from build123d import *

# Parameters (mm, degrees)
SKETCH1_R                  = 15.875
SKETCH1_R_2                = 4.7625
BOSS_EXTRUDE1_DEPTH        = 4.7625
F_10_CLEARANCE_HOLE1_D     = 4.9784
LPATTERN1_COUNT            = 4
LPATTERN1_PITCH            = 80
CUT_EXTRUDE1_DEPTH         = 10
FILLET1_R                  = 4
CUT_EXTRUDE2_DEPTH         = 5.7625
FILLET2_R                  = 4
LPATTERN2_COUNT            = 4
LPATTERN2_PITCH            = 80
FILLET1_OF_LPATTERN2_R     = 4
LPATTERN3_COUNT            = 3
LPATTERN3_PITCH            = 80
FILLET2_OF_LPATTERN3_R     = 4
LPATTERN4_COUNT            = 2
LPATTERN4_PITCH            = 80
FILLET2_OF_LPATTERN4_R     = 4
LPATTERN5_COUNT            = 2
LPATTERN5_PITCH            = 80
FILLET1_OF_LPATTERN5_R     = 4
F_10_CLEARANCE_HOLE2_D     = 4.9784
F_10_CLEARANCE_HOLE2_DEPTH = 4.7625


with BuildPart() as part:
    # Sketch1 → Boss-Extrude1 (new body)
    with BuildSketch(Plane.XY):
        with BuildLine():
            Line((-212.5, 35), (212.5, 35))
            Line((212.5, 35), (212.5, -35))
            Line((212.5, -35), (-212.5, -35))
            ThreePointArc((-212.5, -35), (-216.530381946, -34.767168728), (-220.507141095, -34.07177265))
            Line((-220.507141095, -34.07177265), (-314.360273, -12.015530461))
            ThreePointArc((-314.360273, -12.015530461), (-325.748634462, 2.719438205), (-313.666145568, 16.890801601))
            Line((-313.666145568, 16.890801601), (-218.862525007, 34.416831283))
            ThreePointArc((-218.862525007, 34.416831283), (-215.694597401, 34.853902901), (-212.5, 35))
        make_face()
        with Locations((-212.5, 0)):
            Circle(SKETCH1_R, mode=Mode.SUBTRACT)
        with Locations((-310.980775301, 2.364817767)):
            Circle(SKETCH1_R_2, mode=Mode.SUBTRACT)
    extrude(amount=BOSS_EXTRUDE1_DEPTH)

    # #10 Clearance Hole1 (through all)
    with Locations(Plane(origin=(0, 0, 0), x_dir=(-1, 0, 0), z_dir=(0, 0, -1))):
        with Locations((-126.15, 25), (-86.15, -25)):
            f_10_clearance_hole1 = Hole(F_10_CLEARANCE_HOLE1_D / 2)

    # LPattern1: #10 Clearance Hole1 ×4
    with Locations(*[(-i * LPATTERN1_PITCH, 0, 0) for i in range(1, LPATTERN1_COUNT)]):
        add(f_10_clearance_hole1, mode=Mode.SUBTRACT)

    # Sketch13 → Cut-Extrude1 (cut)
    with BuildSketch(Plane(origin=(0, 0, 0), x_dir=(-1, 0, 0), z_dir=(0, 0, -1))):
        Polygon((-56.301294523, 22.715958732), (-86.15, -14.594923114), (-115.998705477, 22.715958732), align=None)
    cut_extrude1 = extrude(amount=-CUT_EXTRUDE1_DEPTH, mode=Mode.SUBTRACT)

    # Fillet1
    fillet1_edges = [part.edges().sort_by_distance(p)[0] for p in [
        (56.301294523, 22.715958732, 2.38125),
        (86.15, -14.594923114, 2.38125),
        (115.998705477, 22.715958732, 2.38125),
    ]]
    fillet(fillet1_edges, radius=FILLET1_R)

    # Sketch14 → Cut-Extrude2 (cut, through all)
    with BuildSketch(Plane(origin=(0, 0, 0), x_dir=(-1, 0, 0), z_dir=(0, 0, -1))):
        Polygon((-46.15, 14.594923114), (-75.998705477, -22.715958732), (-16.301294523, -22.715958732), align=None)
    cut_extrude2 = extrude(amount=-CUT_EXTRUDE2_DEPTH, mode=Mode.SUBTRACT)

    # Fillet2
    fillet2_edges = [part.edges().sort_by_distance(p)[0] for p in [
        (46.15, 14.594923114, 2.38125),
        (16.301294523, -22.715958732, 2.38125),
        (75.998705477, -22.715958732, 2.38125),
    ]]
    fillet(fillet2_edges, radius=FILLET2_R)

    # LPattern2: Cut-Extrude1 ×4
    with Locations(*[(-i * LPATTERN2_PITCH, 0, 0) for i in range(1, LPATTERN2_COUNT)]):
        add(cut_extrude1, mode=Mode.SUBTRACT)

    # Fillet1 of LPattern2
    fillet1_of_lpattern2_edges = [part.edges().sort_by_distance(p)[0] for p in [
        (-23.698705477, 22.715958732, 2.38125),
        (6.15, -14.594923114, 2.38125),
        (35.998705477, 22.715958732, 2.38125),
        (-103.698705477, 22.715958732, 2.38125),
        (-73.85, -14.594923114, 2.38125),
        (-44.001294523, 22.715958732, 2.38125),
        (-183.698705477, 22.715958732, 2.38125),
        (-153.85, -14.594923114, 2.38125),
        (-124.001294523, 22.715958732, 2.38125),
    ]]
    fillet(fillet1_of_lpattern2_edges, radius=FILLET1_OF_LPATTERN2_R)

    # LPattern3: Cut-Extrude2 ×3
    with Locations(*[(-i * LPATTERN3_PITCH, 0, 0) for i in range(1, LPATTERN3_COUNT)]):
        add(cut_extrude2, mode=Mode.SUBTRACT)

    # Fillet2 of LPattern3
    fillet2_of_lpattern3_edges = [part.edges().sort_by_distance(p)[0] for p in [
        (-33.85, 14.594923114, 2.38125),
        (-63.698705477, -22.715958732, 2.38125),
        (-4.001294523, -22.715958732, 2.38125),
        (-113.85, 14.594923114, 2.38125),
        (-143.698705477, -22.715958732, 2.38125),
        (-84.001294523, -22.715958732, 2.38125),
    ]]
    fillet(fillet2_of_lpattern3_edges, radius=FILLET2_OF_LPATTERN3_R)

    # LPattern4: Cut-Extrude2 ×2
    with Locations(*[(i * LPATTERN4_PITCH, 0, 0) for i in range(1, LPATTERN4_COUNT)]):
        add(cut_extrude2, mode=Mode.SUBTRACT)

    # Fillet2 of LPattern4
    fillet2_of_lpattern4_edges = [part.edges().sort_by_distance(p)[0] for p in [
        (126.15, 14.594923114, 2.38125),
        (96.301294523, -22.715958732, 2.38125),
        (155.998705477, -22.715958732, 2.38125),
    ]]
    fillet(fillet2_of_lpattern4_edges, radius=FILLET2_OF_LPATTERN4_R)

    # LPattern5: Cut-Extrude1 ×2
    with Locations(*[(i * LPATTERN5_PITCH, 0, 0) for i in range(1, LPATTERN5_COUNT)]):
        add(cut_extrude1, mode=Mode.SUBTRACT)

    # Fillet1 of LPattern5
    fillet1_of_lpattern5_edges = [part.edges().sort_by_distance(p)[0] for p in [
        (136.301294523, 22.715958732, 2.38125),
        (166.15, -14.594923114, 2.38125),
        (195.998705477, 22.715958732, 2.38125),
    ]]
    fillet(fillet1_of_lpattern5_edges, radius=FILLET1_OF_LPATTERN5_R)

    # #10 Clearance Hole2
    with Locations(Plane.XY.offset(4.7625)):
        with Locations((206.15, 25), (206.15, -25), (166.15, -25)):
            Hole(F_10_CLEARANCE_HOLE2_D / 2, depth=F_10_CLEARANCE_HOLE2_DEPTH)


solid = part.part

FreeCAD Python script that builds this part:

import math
import FreeCAD as App
import Part
import Sketcher
Q = App.Units.Quantity


def edges_at(feature, points):
    """Names of the edges that pass closest to the given points."""
    edges = feature.Shape.Edges
    near = lambda p: min(range(len(edges)), key=lambda i: edges[i].distToShape(Part.Vertex(*p))[0])
    return sorted({f"Edge{near(p) + 1}" for p in points})

doc = App.newDocument("Part")
body = doc.addObject("PartDesign::Body", "Body")

# Sketch on XY plane
sketch1 = doc.addObject("Sketcher::SketchObject", "Sketch")
body.addObject(sketch1)
sketch1.AttachmentSupport = (doc.XY_Plane, [""])
sketch1.MapMode = "FlatFace"
sketch1.addGeometry([
    Part.LineSegment(App.Vector(212.5, 35, 0), App.Vector(-212.5, 35, 0)),  # 0
    Part.ArcOfCircle(Part.Circle(App.Vector(-212.5, 0, 0), App.Vector(0, 0, 1), 35), math.radians(90), math.radians(100.47)),  # 1
    Part.LineSegment(App.Vector(-218.9, 34.4, 0), App.Vector(-313.7, 16.9, 0)),  # 2
    Part.ArcOfCircle(Part.Circle(App.Vector(-311, 2.4, 0), App.Vector(0, 0, 1), 14.8), math.radians(100), math.radians(257)),  # 3
    Part.LineSegment(App.Vector(-314.4, -12, 0), App.Vector(-220.5, -34.1, 0)),  # 4
    Part.ArcOfCircle(Part.Circle(App.Vector(-212.5, 0, 0), App.Vector(0, 0, 1), 35), math.radians(-103.22), math.radians(-90)),  # 5
    Part.LineSegment(App.Vector(-212.5, -35, 0), App.Vector(212.5, -35, 0)),  # 6
    Part.LineSegment(App.Vector(212.5, -35, 0), App.Vector(212.5, 35, 0)),  # 7
    Part.Circle(App.Vector(-212.5, 0, 0), App.Vector(0, 0, 1), 15.9),  # 8
    Part.Circle(App.Vector(-311, 2.4, 0), App.Vector(0, 0, 1), 4.8),  # 9
], False)
sketch1.addConstraint([
    Sketcher.Constraint("Tangent", 0, 2, 1, 1),
    Sketcher.Constraint("Tangent", 1, 2, 2, 1),
    Sketcher.Constraint("Tangent", 2, 2, 3, 1),
    Sketcher.Constraint("Tangent", 3, 2, 4, 1),
    Sketcher.Constraint("Tangent", 4, 2, 5, 1),
    Sketcher.Constraint("Tangent", 5, 2, 6, 1),
    Sketcher.Constraint("Coincident", 6, 2, 7, 1),
    Sketcher.Constraint("Coincident", 7, 2, 0, 1),
    Sketcher.Constraint("Horizontal", 0),
    Sketcher.Constraint("Horizontal", 6),
    Sketcher.Constraint("Vertical", 7),
    Sketcher.Constraint("Coincident", 5, 3, 1, 3),
    Sketcher.Constraint("Coincident", 8, 3, 1, 3),
    Sketcher.Constraint("Coincident", 9, 3, 3, 3),
    Sketcher.Constraint("Equal", 1, 5),
    Sketcher.Constraint("Symmetric", 0, 2, 6, 2, -1, 1),
    Sketcher.Constraint("Radius", 1, Q("35 mm")),
    Sketcher.Constraint("Diameter", 8, Q("31.75 mm")),
    Sketcher.Constraint("DistanceX", 0, 2, 0, 1, Q("425 mm")),
    Sketcher.Constraint("Diameter", 9, Q("9.525 mm")),
    Sketcher.Constraint("Distance", 2, Q("96.41 mm")),
    Sketcher.Constraint("Radius", 3, Q("14.772116 mm")),
    Sketcher.Constraint("DistanceY", -1, 1, 2, 2, Q("16.890802 mm")),
])
pad1 = doc.addObject("PartDesign::Pad", "Pad")
body.addObject(pad1)
pad1.Profile = sketch1
pad1.Length = 4.7625

# Sketch on XY plane
sketch2 = doc.addObject("Sketcher::SketchObject", "Sketch001")
body.addObject(sketch2)
sketch2.AttachmentSupport = (doc.XY_Plane, [""])
sketch2.MapMode = "FlatFace"
sketch2.addGeometry([
    Part.Circle(App.Vector(126.2, 25, 0), App.Vector(0, 0, 1), 2.5),
    Part.Circle(App.Vector(86.2, -25, 0), App.Vector(0, 0, 1), 2.5),
], False)
sketch2.addConstraint([
    Sketcher.Constraint("Equal", 0, 1),
    Sketcher.Constraint("DistanceY", -1, 1, 0, 3, Q("25 mm")),
    Sketcher.Constraint("DistanceY", 1, 3, -1, 1, Q("25 mm")),
    Sketcher.Constraint("DistanceX", 1, 3, 0, 3, Q("40 mm")),
    Sketcher.Constraint("Diameter", 0, Q("4.9784 mm")),
    Sketcher.Constraint("DistanceX", -1, 1, 0, 3, Q("126.15 mm")),
])
doc.recompute()
hole = doc.addObject("PartDesign::Hole", "Hole")
body.addObject(hole)
hole.Profile = sketch2
hole.ThreadType = "None"
hole.Diameter = 4.9784
hole.DepthType = "ThroughAll"
hole.Reversed = True
doc.recompute()

linearpattern = doc.addObject("PartDesign::LinearPattern", "LinearPattern")
body.addObject(linearpattern)
linearpattern.Originals = [hole]
linearpattern.Direction = (doc.X_Axis, [""])
linearpattern.Mode = "offset"
linearpattern.Offset = 80
linearpattern.Occurrences = 4
linearpattern.Reversed = True
body.Tip = linearpattern

# Sketch on XY plane
sketch3 = doc.addObject("Sketcher::SketchObject", "Sketch002")
body.addObject(sketch3)
sketch3.AttachmentSupport = (doc.XY_Plane, [""])
sketch3.MapMode = "FlatFace"
sketch3.addGeometry([
    Part.LineSegment(App.Vector(86, -15, 0), App.Vector(56, 23, 0)),
    Part.LineSegment(App.Vector(56, 23, 0), App.Vector(116, 23, 0)),
    Part.LineSegment(App.Vector(116, 23, 0), App.Vector(86, -15, 0)),
], False)
sketch3.addConstraint([
    Sketcher.Constraint("Coincident", 0, 2, 1, 1),
    Sketcher.Constraint("Coincident", 1, 2, 2, 1),
    Sketcher.Constraint("Coincident", 2, 2, 0, 1),
    Sketcher.Constraint("Horizontal", 1),
    Sketcher.Constraint("Equal", 0, 2),
    Sketcher.Constraint("DistanceX", -1, 1, 2, 2, Q("86.15 mm")),
    Sketcher.Constraint("DistanceX", 1, 1, 1, 2, Q("59.697411 mm")),
    Sketcher.Constraint("DistanceY", -1, 1, 0, 2, Q("22.715959 mm")),
    Sketcher.Constraint("DistanceY", 2, 2, 0, 2, Q("37.310882 mm")),
])
pocket1 = doc.addObject("PartDesign::Pocket", "Pocket")
body.addObject(pocket1)
pocket1.Profile = sketch3
pocket1.Length = 10
pocket1.Reversed = True
doc.recompute()

fillet = doc.addObject("PartDesign::Fillet", "Fillet")
body.addObject(fillet)
fillet.Base = (pocket1, edges_at(pocket1, [(56.301, 22.716, 2.381), (86.15, -14.595, 2.381), (115.999, 22.716, 2.381)]))
fillet.Radius = 4

# Sketch on XY plane
sketch4 = doc.addObject("Sketcher::SketchObject", "Sketch003")
body.addObject(sketch4)
sketch4.AttachmentSupport = (doc.XY_Plane, [""])
sketch4.MapMode = "FlatFace"
sketch4.addGeometry([
    Part.LineSegment(App.Vector(46, 15, 0), App.Vector(76, -23, 0)),
    Part.LineSegment(App.Vector(76, -23, 0), App.Vector(16, -23, 0)),
    Part.LineSegment(App.Vector(16, -23, 0), App.Vector(46, 15, 0)),
], False)
sketch4.addConstraint([
    Sketcher.Constraint("Coincident", 0, 2, 1, 1),
    Sketcher.Constraint("Coincident", 1, 2, 2, 1),
    Sketcher.Constraint("Coincident", 2, 2, 0, 1),
    Sketcher.Constraint("Horizontal", 1),
    Sketcher.Constraint("Equal", 0, 2),
    Sketcher.Constraint("DistanceX", -1, 1, 2, 2, Q("46.15 mm")),
    Sketcher.Constraint("DistanceX", 1, 2, 1, 1, Q("59.697411 mm")),
    Sketcher.Constraint("DistanceY", 0, 2, -1, 1, Q("22.715959 mm")),
    Sketcher.Constraint("DistanceY", 0, 2, 2, 2, Q("37.310882 mm")),
])
pocket2 = doc.addObject("PartDesign::Pocket", "Pocket001")
body.addObject(pocket2)
pocket2.Profile = sketch4
pocket2.Type = "ThroughAll"
pocket2.Reversed = True
doc.recompute()

fillet2 = doc.addObject("PartDesign::Fillet", "Fillet001")
body.addObject(fillet2)
fillet2.Base = (pocket2, edges_at(pocket2, [(46.15, 14.595, 2.381), (16.301, -22.716, 2.381), (75.999, -22.716, 2.381)]))
fillet2.Radius = 4
doc.recompute()

linearpattern2 = doc.addObject("PartDesign::LinearPattern", "LinearPattern001")
body.addObject(linearpattern2)
linearpattern2.Originals = [pocket1]
linearpattern2.Direction = (doc.X_Axis, [""])
linearpattern2.Mode = "offset"
linearpattern2.Offset = 80
linearpattern2.Occurrences = 4
linearpattern2.Reversed = True
body.Tip = linearpattern2
doc.recompute()

fillet3 = doc.addObject("PartDesign::Fillet", "Fillet002")
body.addObject(fillet3)
fillet3.Base = (linearpattern2, edges_at(linearpattern2, [
    (-23.699, 22.716, 2.381),
    (6.15, -14.595, 2.381),
    (35.999, 22.716, 2.381),
    (-103.699, 22.716, 2.381),
    (-73.85, -14.595, 2.381),
    (-44.001, 22.716, 2.381),
    (-183.699, 22.716, 2.381),
    (-153.85, -14.595, 2.381),
    (-124.001, 22.716, 2.381),
]))
fillet3.Radius = 4
doc.recompute()

linearpattern3 = doc.addObject("PartDesign::LinearPattern", "LinearPattern002")
body.addObject(linearpattern3)
linearpattern3.Originals = [pocket2]
linearpattern3.Direction = (doc.X_Axis, [""])
linearpattern3.Mode = "offset"
linearpattern3.Offset = 80
linearpattern3.Occurrences = 3
linearpattern3.Reversed = True
body.Tip = linearpattern3
doc.recompute()

fillet4 = doc.addObject("PartDesign::Fillet", "Fillet003")
body.addObject(fillet4)
fillet4.Base = (linearpattern3, edges_at(linearpattern3, [
    (-33.85, 14.595, 2.381),
    (-63.699, -22.716, 2.381),
    (-4.001, -22.716, 2.381),
    (-113.85, 14.595, 2.381),
    (-143.699, -22.716, 2.381),
    (-84.001, -22.716, 2.381),
]))
fillet4.Radius = 4
doc.recompute()

linearpattern4 = doc.addObject("PartDesign::LinearPattern", "LinearPattern003")
body.addObject(linearpattern4)
linearpattern4.Originals = [pocket2]
linearpattern4.Direction = (doc.X_Axis, [""])
linearpattern4.Mode = "offset"
linearpattern4.Offset = 80
linearpattern4.Occurrences = 2
body.Tip = linearpattern4
doc.recompute()

fillet5 = doc.addObject("PartDesign::Fillet", "Fillet004")
body.addObject(fillet5)
fillet5.Base = (linearpattern4, edges_at(linearpattern4, [(126.15, 14.595, 2.381), (96.301, -22.716, 2.381), (155.999, -22.716, 2.381)]))
fillet5.Radius = 4
doc.recompute()

linearpattern5 = doc.addObject("PartDesign::LinearPattern", "LinearPattern004")
body.addObject(linearpattern5)
linearpattern5.Originals = [pocket1]
linearpattern5.Direction = (doc.X_Axis, [""])
linearpattern5.Mode = "offset"
linearpattern5.Offset = 80
linearpattern5.Occurrences = 2
body.Tip = linearpattern5
doc.recompute()

fillet6 = doc.addObject("PartDesign::Fillet", "Fillet005")
body.addObject(fillet6)
fillet6.Base = (linearpattern5, edges_at(linearpattern5, [(136.301, 22.716, 2.381), (166.15, -14.595, 2.381), (195.999, 22.716, 2.381)]))
fillet6.Radius = 4

# Sketch on XY plane
sketch5 = doc.addObject("Sketcher::SketchObject", "Sketch004")
body.addObject(sketch5)
sketch5.AttachmentSupport = (doc.XY_Plane, [""])
sketch5.MapMode = "FlatFace"
sketch5.AttachmentOffset = App.Placement(App.Vector(0, 0, 4.7625), App.Rotation())
sketch5.addGeometry([
    Part.Circle(App.Vector(206.2, 25, 0), App.Vector(0, 0, 1), 2.5),
    Part.Circle(App.Vector(206.2, -25, 0), App.Vector(0, 0, 1), 2.5),
    Part.Circle(App.Vector(166.2, -25, 0), App.Vector(0, 0, 1), 2.5),
], False)
sketch5.addConstraint([
    Sketcher.Constraint("Equal", 0, 1),
    Sketcher.Constraint("Equal", 1, 2),
    Sketcher.Constraint("Symmetric", 0, 3, 1, 3, -1),
    Sketcher.Constraint("Horizontal", 1, 3, 2, 3),
    Sketcher.Constraint("DistanceY", -1, 1, 0, 3, Q("25 mm")),
    Sketcher.Constraint("DistanceX", 2, 3, 1, 3, Q("40 mm")),
    Sketcher.Constraint("Diameter", 0, Q("4.9784 mm")),
    Sketcher.Constraint("DistanceX", -1, 1, 0, 3, Q("206.15 mm")),
])
doc.recompute()
hole2 = doc.addObject("PartDesign::Hole", "Hole001")
body.addObject(hole2)
hole2.Profile = sketch5
hole2.ThreadType = "None"
hole2.Diameter = 4.9784
hole2.DepthType = "Dimension"
hole2.Depth = 4.7625
hole2.DrillPoint = "Flat"

doc.recompute()
